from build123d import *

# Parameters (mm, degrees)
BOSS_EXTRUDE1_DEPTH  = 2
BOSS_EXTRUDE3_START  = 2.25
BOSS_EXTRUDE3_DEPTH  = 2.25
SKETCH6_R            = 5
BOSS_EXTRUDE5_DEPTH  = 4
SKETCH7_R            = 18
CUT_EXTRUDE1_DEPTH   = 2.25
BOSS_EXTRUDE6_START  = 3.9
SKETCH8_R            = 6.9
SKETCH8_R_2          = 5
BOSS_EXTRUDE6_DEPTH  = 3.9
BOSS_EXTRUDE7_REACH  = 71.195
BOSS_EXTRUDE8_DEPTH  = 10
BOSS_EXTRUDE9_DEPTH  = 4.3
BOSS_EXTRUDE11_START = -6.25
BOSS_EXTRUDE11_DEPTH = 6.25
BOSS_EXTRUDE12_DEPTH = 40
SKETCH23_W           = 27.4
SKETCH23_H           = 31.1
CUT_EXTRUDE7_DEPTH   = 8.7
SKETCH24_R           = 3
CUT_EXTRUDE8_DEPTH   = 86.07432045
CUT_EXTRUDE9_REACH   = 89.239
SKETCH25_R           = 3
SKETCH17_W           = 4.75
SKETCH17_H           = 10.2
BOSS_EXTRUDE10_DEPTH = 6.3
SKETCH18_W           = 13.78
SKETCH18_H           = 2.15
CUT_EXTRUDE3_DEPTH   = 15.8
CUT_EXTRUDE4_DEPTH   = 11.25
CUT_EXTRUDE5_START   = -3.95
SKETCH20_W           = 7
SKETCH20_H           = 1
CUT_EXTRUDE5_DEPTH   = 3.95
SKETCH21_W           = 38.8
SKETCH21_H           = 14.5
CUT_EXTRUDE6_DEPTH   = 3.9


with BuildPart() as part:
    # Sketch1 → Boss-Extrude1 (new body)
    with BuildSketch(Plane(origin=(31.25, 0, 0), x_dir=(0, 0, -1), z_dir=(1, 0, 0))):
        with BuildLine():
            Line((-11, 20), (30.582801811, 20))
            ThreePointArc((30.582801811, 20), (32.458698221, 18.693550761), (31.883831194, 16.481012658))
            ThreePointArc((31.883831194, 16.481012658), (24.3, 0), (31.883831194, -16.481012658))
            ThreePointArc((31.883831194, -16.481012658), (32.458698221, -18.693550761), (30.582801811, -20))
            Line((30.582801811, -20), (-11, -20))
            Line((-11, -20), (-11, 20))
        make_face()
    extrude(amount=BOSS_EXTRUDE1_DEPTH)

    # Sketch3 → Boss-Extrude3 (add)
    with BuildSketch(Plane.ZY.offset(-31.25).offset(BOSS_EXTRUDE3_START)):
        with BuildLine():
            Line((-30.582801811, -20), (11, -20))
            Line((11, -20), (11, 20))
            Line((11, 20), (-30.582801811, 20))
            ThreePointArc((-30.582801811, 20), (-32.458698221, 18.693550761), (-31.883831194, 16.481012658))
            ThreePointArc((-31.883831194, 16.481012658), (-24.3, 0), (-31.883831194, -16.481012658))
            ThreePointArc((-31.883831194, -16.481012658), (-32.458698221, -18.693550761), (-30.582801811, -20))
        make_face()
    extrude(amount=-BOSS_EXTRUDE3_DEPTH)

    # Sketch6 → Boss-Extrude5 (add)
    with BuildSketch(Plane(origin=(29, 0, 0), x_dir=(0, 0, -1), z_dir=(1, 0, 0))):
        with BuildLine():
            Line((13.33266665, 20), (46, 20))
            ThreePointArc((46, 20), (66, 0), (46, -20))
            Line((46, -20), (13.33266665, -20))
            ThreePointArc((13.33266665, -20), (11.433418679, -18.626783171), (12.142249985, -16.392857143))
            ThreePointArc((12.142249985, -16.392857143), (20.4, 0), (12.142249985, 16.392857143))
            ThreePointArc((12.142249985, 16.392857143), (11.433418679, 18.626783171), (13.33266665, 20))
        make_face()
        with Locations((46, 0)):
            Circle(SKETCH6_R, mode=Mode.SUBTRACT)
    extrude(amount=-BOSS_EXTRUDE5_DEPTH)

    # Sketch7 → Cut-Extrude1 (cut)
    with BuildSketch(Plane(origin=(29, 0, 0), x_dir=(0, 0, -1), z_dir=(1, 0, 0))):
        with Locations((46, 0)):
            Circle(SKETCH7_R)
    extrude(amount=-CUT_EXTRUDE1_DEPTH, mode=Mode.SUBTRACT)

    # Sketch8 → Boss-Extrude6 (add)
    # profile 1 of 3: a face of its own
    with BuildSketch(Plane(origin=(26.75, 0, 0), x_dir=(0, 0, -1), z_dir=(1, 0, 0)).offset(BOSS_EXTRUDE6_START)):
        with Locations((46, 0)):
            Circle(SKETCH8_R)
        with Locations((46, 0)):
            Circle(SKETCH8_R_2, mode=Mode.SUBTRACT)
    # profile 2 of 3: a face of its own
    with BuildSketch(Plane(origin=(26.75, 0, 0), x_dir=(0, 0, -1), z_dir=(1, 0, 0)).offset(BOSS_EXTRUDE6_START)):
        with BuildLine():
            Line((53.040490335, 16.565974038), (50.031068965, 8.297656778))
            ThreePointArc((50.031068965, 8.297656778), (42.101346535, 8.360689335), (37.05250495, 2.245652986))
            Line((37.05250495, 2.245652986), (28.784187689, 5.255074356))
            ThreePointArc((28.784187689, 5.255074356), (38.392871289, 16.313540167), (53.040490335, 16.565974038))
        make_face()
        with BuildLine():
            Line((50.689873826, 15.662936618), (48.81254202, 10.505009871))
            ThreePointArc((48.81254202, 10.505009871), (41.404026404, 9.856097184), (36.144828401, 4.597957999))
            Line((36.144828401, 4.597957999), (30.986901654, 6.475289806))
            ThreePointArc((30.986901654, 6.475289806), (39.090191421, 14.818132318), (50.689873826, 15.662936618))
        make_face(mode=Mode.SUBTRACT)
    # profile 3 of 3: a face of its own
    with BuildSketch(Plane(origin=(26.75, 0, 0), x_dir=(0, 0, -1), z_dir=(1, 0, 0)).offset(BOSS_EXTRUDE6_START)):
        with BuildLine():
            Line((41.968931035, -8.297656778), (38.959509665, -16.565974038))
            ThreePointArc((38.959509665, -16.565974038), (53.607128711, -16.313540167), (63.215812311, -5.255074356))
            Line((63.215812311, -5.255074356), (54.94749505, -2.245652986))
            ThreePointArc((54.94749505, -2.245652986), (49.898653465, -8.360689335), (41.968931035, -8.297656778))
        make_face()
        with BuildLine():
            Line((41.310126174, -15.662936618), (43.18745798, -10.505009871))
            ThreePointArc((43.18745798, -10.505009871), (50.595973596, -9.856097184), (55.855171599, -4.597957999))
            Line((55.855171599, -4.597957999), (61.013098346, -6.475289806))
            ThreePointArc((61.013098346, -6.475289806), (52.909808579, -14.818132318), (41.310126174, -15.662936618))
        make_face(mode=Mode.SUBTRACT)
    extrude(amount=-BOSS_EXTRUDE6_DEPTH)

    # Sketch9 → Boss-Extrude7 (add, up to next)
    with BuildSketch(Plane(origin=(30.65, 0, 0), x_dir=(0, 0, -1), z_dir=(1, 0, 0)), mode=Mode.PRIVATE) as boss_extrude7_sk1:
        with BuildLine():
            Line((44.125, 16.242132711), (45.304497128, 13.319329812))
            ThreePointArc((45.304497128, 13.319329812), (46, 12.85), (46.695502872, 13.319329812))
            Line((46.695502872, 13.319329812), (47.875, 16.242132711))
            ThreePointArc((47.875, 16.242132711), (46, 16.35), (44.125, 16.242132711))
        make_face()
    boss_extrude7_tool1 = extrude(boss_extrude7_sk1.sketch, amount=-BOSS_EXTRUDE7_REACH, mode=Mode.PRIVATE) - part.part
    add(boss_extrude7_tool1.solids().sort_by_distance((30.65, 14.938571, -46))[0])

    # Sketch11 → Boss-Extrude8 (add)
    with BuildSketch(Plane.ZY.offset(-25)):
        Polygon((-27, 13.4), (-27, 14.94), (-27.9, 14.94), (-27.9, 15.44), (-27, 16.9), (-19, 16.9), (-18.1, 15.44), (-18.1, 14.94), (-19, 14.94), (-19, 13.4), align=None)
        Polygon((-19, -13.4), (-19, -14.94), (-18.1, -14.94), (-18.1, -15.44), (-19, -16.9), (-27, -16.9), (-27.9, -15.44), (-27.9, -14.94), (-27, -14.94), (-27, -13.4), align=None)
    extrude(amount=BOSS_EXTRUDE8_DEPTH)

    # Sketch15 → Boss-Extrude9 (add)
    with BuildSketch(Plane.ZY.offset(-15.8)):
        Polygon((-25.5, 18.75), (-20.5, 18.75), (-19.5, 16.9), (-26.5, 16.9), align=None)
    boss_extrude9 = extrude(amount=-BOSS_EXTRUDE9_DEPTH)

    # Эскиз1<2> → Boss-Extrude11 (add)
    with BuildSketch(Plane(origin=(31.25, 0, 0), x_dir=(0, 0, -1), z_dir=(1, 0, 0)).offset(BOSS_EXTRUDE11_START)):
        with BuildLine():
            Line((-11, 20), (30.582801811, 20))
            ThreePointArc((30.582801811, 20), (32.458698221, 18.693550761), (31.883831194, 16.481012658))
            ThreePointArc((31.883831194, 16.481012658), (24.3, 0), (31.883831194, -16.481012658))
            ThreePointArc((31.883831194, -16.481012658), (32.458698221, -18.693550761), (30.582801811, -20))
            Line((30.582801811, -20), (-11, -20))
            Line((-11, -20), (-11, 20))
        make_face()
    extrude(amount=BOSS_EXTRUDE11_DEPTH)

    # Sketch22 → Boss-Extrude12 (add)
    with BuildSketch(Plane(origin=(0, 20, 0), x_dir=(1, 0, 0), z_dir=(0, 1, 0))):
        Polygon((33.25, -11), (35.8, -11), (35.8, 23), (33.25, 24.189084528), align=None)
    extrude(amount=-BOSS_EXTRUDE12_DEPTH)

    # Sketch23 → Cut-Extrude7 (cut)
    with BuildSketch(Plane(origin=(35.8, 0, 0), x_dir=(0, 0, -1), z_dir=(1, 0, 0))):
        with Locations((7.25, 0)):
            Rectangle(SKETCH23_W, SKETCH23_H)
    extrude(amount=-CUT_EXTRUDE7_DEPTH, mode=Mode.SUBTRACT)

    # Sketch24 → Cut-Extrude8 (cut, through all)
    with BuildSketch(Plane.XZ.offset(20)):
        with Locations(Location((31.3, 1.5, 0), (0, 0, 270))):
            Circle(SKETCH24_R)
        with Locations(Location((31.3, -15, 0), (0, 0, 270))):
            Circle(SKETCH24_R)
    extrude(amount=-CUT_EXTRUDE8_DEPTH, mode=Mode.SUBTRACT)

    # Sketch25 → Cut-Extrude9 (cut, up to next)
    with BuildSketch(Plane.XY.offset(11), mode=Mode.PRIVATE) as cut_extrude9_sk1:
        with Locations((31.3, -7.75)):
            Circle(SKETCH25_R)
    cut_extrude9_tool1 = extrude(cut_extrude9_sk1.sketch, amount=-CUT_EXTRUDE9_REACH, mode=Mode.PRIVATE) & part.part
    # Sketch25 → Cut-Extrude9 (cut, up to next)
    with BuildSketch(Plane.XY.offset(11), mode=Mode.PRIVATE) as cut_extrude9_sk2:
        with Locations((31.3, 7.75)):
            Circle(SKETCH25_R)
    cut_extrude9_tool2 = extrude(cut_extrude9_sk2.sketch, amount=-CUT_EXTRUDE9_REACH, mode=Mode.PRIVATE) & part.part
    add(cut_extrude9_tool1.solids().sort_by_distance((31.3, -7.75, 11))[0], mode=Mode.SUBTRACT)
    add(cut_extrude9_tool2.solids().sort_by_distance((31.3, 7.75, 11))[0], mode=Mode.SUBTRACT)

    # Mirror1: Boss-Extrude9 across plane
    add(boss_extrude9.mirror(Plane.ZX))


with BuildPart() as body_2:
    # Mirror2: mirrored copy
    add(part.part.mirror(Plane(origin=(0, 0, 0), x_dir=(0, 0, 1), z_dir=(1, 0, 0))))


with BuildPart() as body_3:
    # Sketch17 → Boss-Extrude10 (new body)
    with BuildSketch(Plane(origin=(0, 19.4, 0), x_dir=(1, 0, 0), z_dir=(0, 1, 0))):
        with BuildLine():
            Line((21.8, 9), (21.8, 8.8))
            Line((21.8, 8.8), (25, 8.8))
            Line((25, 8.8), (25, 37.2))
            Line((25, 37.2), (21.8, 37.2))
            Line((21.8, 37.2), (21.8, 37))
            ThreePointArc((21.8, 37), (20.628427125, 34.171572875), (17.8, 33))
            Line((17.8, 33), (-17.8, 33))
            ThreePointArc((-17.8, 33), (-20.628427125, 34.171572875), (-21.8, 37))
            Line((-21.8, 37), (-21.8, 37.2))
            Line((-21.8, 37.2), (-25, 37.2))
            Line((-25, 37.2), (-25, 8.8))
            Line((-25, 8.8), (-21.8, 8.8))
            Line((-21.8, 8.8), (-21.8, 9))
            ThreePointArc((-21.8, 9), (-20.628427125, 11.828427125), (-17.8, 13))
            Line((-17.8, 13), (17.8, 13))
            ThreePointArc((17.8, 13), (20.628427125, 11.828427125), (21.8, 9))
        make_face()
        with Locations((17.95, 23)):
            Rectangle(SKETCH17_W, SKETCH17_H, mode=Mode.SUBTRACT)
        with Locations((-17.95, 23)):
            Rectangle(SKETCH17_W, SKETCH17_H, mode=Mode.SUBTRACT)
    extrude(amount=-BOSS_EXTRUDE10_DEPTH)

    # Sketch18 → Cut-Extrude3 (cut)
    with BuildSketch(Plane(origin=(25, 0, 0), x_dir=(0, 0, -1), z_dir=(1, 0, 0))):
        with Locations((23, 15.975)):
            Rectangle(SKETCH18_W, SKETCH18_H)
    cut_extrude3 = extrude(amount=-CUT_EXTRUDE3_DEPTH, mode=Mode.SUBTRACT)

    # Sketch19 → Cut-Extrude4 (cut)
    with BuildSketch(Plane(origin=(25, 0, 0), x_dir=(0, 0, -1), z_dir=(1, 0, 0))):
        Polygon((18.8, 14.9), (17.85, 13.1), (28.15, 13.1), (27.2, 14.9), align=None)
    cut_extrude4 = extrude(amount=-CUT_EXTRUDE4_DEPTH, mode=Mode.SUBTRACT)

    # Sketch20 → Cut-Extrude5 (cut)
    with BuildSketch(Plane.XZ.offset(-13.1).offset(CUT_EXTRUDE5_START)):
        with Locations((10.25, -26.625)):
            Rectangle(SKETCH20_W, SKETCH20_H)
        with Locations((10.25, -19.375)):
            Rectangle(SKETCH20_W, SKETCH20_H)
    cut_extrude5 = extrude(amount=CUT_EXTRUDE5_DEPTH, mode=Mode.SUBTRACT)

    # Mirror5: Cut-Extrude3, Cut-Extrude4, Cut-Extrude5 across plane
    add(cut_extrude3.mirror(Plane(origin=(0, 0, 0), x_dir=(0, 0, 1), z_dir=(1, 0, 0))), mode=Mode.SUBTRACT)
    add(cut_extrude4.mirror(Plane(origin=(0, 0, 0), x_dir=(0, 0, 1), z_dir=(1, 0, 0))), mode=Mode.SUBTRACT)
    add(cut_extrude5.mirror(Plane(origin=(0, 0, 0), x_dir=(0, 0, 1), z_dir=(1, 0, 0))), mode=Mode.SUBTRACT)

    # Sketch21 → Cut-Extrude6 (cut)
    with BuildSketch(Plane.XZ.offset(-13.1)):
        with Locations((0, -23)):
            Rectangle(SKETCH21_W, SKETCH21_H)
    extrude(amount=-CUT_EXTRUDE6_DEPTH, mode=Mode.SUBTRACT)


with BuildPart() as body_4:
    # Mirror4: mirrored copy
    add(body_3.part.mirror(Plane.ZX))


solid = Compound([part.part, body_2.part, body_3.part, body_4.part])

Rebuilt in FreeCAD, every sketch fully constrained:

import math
import FreeCAD as App
import Part
import Sketcher
from FreeCAD import Vector
Q = App.Units.Quantity


def add_polygon(sketch, points):
    """Adds a closed chain of lines whose ends are joined by coincident constraints."""
    first, n = sketch.GeometryCount, len(points)
    for a, b in zip(points, points[1:] + points[:1]):
        sketch.addGeometry(Part.LineSegment(App.Vector(*a, 0), App.Vector(*b, 0)), False)
    for i in range(n):
        sketch.addConstraint(Sketcher.Constraint("Coincident", first + i, 2, first + (i + 1) % n, 1))

doc = App.newDocument("Part")
body = doc.addObject("PartDesign::Body", "Body")

# Sketch on YZ plane
sketch1 = doc.addObject("Sketcher::SketchObject", "Sketch")
body.addObject(sketch1)
sketch1.AttachmentSupport = (doc.YZ_Plane, [""])
sketch1.MapMode = "FlatFace"
sketch1.AttachmentOffset = App.Placement(Vector(0, 0, 31.25), App.Rotation())
sketch1.addGeometry([
    Part.LineSegment(Vector(20, -30.6, 0), Vector(20, 11, 0)),  # 0
    Part.LineSegment(Vector(20, 11, 0), Vector(-20, 11, 0)),  # 1
    Part.LineSegment(Vector(-20, 11, 0), Vector(-20, -30.6, 0)),  # 2
    Part.ArcOfCircle(Part.Circle(Vector(-18, -30.6, 0), Vector(0, 0, 1), 2), math.radians(180), math.radians(319)),  # 3
    Part.ArcOfCircle(Part.Circle(Vector(0, -46, 0), Vector(0, 0, 1), 21.7), math.radians(41), math.radians(139)),  # 4
    Part.ArcOfCircle(Part.Circle(Vector(18, -30.6, 0), Vector(0, 0, 1), 2), math.radians(-139), math.radians(0)),  # 5
], False)
sketch1.addConstraint([
    Sketcher.Constraint("Coincident", 0, 2, 1, 1),
    Sketcher.Constraint("Coincident", 1, 2, 2, 1),
    Sketcher.Constraint("Tangent", 2, 2, 3, 1),
    Sketcher.Constraint("Tangent", 3, 2, 4, 2),
    Sketcher.Constraint("Tangent", 4, 1, 5, 1),
    Sketcher.Constraint("Tangent", 5, 2, 0, 1),
    Sketcher.Constraint("Vertical", 0),
    Sketcher.Constraint("Horizontal", 1),
    Sketcher.Constraint("Vertical", 2),
    Sketcher.Constraint("Equal", 3, 5),
    Sketcher.Constraint("Symmetric", 3, 3, 5, 3, -2),
    Sketcher.Constraint("Radius", 3, Q("2 mm")),
    Sketcher.Constraint("Radius", 4, Q("21.7 mm")),
    Sketcher.Constraint("DistanceX", 1, 2, 1, 1, Q("40 mm")),
    Sketcher.Constraint("DistanceY", 4, 3, -1, 1, Q("46 mm")),
    Sketcher.Constraint("DistanceY", -1, 1, 0, 2, Q("11 mm")),
])
pad1 = doc.addObject("PartDesign::Pad", "Pad")
body.addObject(pad1)
pad1.Profile = sketch1
pad1.Length = 2

# Sketch on YZ plane
sketch2 = doc.addObject("Sketcher::SketchObject", "Sketch001")
body.addObject(sketch2)
sketch2.AttachmentSupport = (doc.YZ_Plane, [""])
sketch2.MapMode = "FlatFace"
sketch2.AttachmentOffset = App.Placement(Vector(0, 0, 29), App.Rotation())
sketch2.addGeometry([
    Part.LineSegment(Vector(-20, -30.6, 0), Vector(-20, 11, 0)),  # 0
    Part.LineSegment(Vector(-20, 11, 0), Vector(20, 11, 0)),  # 1
    Part.LineSegment(Vector(20, 11, 0), Vector(20, -30.6, 0)),  # 2
    Part.ArcOfCircle(Part.Circle(Vector(18, -30.6, 0), Vector(0, 0, 1), 2), math.radians(-139), math.radians(0)),  # 3
    Part.ArcOfCircle(Part.Circle(Vector(0, -46, 0), Vector(0, 0, 1), 21.7), math.radians(41), math.radians(139)),  # 4
    Part.ArcOfCircle(Part.Circle(Vector(-18, -30.6, 0), Vector(0, 0, 1), 2), math.radians(180), math.radians(319)),  # 5
], False)
sketch2.addConstraint([
    Sketcher.Constraint("Coincident", 0, 2, 1, 1),
    Sketcher.Constraint("Coincident", 1, 2, 2, 1),
    Sketcher.Constraint("Tangent", 2, 2, 3, 2),
    Sketcher.Constraint("Tangent", 3, 1, 4, 1),
    Sketcher.Constraint("Tangent", 4, 2, 5, 2),
    Sketcher.Constraint("Tangent", 5, 1, 0, 1),
    Sketcher.Constraint("Vertical", 0),
    Sketcher.Constraint("Horizontal", 1),
    Sketcher.Constraint("Vertical", 2),
    Sketcher.Constraint("Equal", 3, 5),
    Sketcher.Constraint("Symmetric", 3, 3, 5, 3, -2),
    Sketcher.Constraint("Radius", 3, Q("2 mm")),
    Sketcher.Constraint("Radius", 4, Q("21.7 mm")),
    Sketcher.Constraint("DistanceX", 1, 1, 1, 2, Q("40 mm")),
    Sketcher.Constraint("DistanceY", 4, 3, -1, 1, Q("46 mm")),
    Sketcher.Constraint("DistanceY", -1, 1, 0, 2, Q("11 mm")),
])
pad2 = doc.addObject("PartDesign::Pad", "Pad001")
body.addObject(pad2)
pad2.Profile = sketch2
pad2.Length = 2.25

# Sketch on YZ plane
sketch3 = doc.addObject("Sketcher::SketchObject", "Sketch002")
body.addObject(sketch3)
sketch3.AttachmentSupport = (doc.YZ_Plane, [""])
sketch3.MapMode = "FlatFace"
sketch3.AttachmentOffset = App.Placement(Vector(0, 0, 29), App.Rotation())
sketch3.addGeometry([
    Part.LineSegment(Vector(20, -46, 0), Vector(20, -13.3, 0)),  # 0
    Part.ArcOfCircle(Part.Circle(Vector(18, -13.3, 0), Vector(0, 0, 1), 2), math.radians(0), math.radians(143)),  # 1
    Part.ArcOfCircle(Part.Circle(Vector(0, 0, 0), Vector(0, 0, 1), 20.4), math.radians(-143), math.radians(-37)),  # 2
    Part.ArcOfCircle(Part.Circle(Vector(-18, -13.3, 0), Vector(0, 0, 1), 2), math.radians(37), math.radians(180)),  # 3
    Part.LineSegment(Vector(-20, -13.3, 0), Vector(-20, -46, 0)),  # 4
    Part.ArcOfCircle(Part.Circle(Vector(0, -46, 0), Vector(0, 0, 1), 20), math.radians(180), math.radians(360)),  # 5
    Part.Circle(Vector(0, -46, 0), Vector(0, 0, 1), 5),  # 6
], False)
sketch3.addConstraint([
    Sketcher.Constraint("Tangent", 0, 2, 1, 1),
    Sketcher.Constraint("Tangent", 1, 2, 2, 2),
    Sketcher.Constraint("Tangent", 2, 1, 3, 1),
    Sketcher.Constraint("Tangent", 3, 2, 4, 1),
    Sketcher.Constraint("Tangent", 4, 2, 5, 1),
    Sketcher.Constraint("Tangent", 5, 2, 0, 1),
    Sketcher.Constraint("Vertical", 0),
    Sketcher.Constraint("Vertical", 4),
    Sketcher.Constraint("Coincident", 2, 3, -1, 1),
    Sketcher.Constraint("Coincident", 6, 3, 5, 3),
    Sketcher.Constraint("Equal", 1, 3),
    Sketcher.Constraint("PointOnObject", 5, 3, -2),
    Sketcher.Constraint("Diameter", 6, Q("10 mm")),
    Sketcher.Constraint("Radius", 1, Q("2 mm")),
    Sketcher.Constraint("Radius", 5, Q("20 mm")),
    Sketcher.Constraint("Radius", 2, Q("20.4 mm")),
    Sketcher.Constraint("DistanceY", 5, 3, -1, 1, Q("46 mm")),
])
pad3 = doc.addObject("PartDesign::Pad", "Pad002")
body.addObject(pad3)
pad3.Profile = sketch3
pad3.Length = 4
pad3.Reversed = True

# Sketch on YZ plane
sketch4 = doc.addObject("Sketcher::SketchObject", "Sketch003")
body.addObject(sketch4)
sketch4.AttachmentSupport = (doc.YZ_Plane, [""])
sketch4.MapMode = "FlatFace"
sketch4.AttachmentOffset = App.Placement(Vector(0, 0, 29), App.Rotation())
sketch4.addGeometry(Part.Circle(Vector(0, -46, 0), Vector(0, 0, 1), 18), False)
sketch4.addConstraint([
    Sketcher.Constraint("PointOnObject", 0, 3, -2),
    Sketcher.Constraint("Diameter", 0, Q("36 mm")),
    Sketcher.Constraint("DistanceY", 0, 3, -1, 1, Q("46 mm")),
])
pocket1 = doc.addObject("PartDesign::Pocket", "Pocket")
body.addObject(pocket1)
pocket1.Profile = sketch4
pocket1.Length = 2.25

# Sketch on YZ plane
sketch5 = doc.addObject("Sketcher::SketchObject", "Sketch004")
body.addObject(sketch5)
sketch5.AttachmentSupport = (doc.YZ_Plane, [""])
sketch5.MapMode = "FlatFace"
sketch5.AttachmentOffset = App.Placement(Vector(0, 0, 30.65), App.Rotation())
sketch5.addGeometry([
    Part.Circle(Vector(0, -46, 0), Vector(0, 0, 1), 6.9),  # 0
    Part.Circle(Vector(0, -46, 0), Vector(0, 0, 1), 5),  # 1
    Part.LineSegment(Vector(8.297657, -50.031069, 0), Vector(16.565974, -53.04049, 0)),  # 2
    Part.ArcOfCircle(Part.Circle(Vector(0, -46, 0), Vector(0, 0, 1), 18), math.radians(-23.02535), math.radians(73.02535)),  # 3
    Part.LineSegment(Vector(5.255074, -28.784188, 0), Vector(2.245653, -37.052505, 0)),  # 4
    Part.ArcOfCircle(Part.Circle(Vector(0, -46, 0), Vector(0, 0, 1), 9.225), math.radians(-25.910857), math.radians(75.910857)),  # 5
    Part.LineSegment(Vector(15.662937, -50.689874, 0), Vector(10.50501, -48.812542, 0)),  # 6
    Part.ArcOfCircle(Part.Circle(Vector(0, -46, 0), Vector(0, 0, 1), 10.875), math.radians(-14.988464), math.radians(64.988464)),  # 7
    Part.LineSegment(Vector(4.597958, -36.144828, 0), Vector(6.47529, -30.986902, 0)),  # 8
    Part.ArcOfCircle(Part.Circle(Vector(0, -46, 0), Vector(0, 0, 1), 16.35), math.radians(-16.669011), math.radians(66.669011)),  # 9
    Part.LineSegment(Vector(-8.297657, -41.968931, 0), Vector(-16.565974, -38.95951, 0)),  # 10
    Part.ArcOfCircle(Part.Circle(Vector(0, -46, 0), Vector(0, 0, 1), 18), math.radians(156.97465), math.radians(253.02535)),  # 11
    Part.LineSegment(Vector(-5.255074, -63.215812, 0), Vector(-2.245653, -54.947495, 0)),  # 12
    Part.ArcOfCircle(Part.Circle(Vector(0, -46, 0), Vector(0, 0, 1), 9.225), math.radians(154.089143), math.radians(255.910857)),  # 13
    Part.ArcOfCircle(Part.Circle(Vector(0, -46, 0), Vector(0, 0, 1), 16.35), math.radians(163.330989), math.radians(246.669011)),  # 14
    Part.LineSegment(Vector(-15.662937, -41.310126, 0), Vector(-10.50501, -43.187458, 0)),  # 15
    Part.ArcOfCircle(Part.Circle(Vector(0, -46, 0), Vector(0, 0, 1), 10.875), math.radians(165.011536), math.radians(244.988464)),  # 16
    Part.LineSegment(Vector(-4.597958, -55.855172, 0), Vector(-6.47529, -61.013098, 0)),  # 17
], False)
sketch5.addConstraint([
    Sketcher.Constraint("Coincident", 2, 2, 3, 1),
    Sketcher.Constraint("Coincident", 3, 2, 4, 1),
    Sketcher.Constraint("Coincident", 4, 2, 5, 2),
    Sketcher.Constraint("Coincident", 5, 1, 2, 1),
    Sketcher.Constraint("Coincident", 6, 2, 7, 1),
    Sketcher.Constraint("Coincident", 7, 2, 8, 1),
    Sketcher.Constraint("Coincident", 8, 2, 9, 2),
    Sketcher.Constraint("Coincident", 9, 1, 6, 1),
    Sketcher.Constraint("Coincident", 10, 2, 11, 1),
    Sketcher.Constraint("Coincident", 11, 2, 12, 1),
    Sketcher.Constraint("Coincident", 12, 2, 13, 2),
    Sketcher.Constraint("Coincident", 13, 1, 10, 1),
    Sketcher.Constraint("Coincident", 14, 1, 15, 1),
    Sketcher.Constraint("Coincident", 15, 2, 16, 1),
    Sketcher.Constraint("Coincident", 16, 2, 17, 1),
    Sketcher.Constraint("Coincident", 17, 2, 14, 2),
    Sketcher.Constraint("Coincident", 1, 3, 0, 3),
    Sketcher.Constraint("Coincident", 3, 3, 0, 3),
    Sketcher.Constraint("Coincident", 5, 3, 0, 3),
    Sketcher.Constraint("Coincident", 7, 3, 0, 3),
    Sketcher.Constraint("Coincident", 9, 3, 0, 3),
    Sketcher.Constraint("Coincident", 11, 3, 0, 3),
    Sketcher.Constraint("Coincident", 13, 3, 0, 3),
    Sketcher.Constraint("Coincident", 14, 3, 0, 3),
    Sketcher.Constraint("Coincident", 16, 3, 0, 3),
    Sketcher.Constraint("Equal", 3, 11),
    Sketcher.Constraint("Equal", 5, 13),
    Sketcher.Constraint("Equal", 9, 14),
    Sketcher.Constraint("Equal", 7, 16),
    Sketcher.Constraint("PointOnObject", 0, 3, -2),
    Sketcher.Constraint("Perpendicular", 2, 4),
    Sketcher.Constraint("Perpendicular", 4, 6),
    Sketcher.Constraint("Perpendicular", 6, 8),
    Sketcher.Constraint("Perpendicular", 8, 10),
    Sketcher.Constraint("Perpendicular", 10, 12),
    Sketcher.Constraint("Perpendicular", 12, 15),
    Sketcher.Constraint("Perpendicular", 15, 17),
    Sketcher.Constraint("Equal", 2, 4),
    Sketcher.Constraint("Equal", 6, 8),
    Sketcher.Constraint("Equal", 4, 10),
    Sketcher.Constraint("Equal", 10, 12),
    Sketcher.Constraint("Equal", 8, 15),
    Sketcher.Constraint("Equal", 15, 17),
    Sketcher.Constraint("Diameter", 1, Q("10 mm")),
    Sketcher.Constraint("Radius", 3, Q("18 mm")),
    Sketcher.Constraint("Diameter", 0, Q("13.8 mm")),
    Sketcher.Constraint("Angle", 2, Q("-20 deg")),
    Sketcher.Constraint("Radius", 9, Q("16.35 mm")),
    Sketcher.Constraint("DistanceY", 0, 3, -1, 1, Q("46 mm")),
    Sketcher.Constraint("Radius", 5, Q("9.225 mm")),
    Sketcher.Constraint("Radius", 7, Q("10.875 mm")),
    Sketcher.Constraint("DistanceY", 8, 2, -1, 1, Q("30.986902 mm")),
    Sketcher.Constraint("Distance", 2, Q("8.798959 mm")),
])
pad4 = doc.addObject("PartDesign::Pad", "Pad003")
body.addObject(pad4)
pad4.Profile = sketch5
pad4.Length = 3.9
pad4.Reversed = True

# Sketch on YZ plane
sketch6 = doc.addObject("Sketcher::SketchObject", "Sketch005")
body.addObject(sketch6)
sketch6.AttachmentSupport = (doc.YZ_Plane, [""])
sketch6.MapMode = "FlatFace"
sketch6.AttachmentOffset = App.Placement(Vector(0, 0, 30.65), App.Rotation())
sketch6.addGeometry([
    Part.LineSegment(Vector(16.2, -44.1, 0), Vector(13.3, -45.3, 0)),
    Part.ArcOfCircle(Part.Circle(Vector(13.6, -46, 0), Vector(0, 0, 1), 0.7), math.radians(112), math.radians(248)),
    Part.LineSegment(Vector(13.3, -46.7, 0), Vector(16.2, -47.9, 0)),
    Part.ArcOfCircle(Part.Circle(Vector(0, -46, 0), Vector(0, 0, 1), 16.4), math.radians(-6.59), math.radians(6.59)),
], False)
sketch6.addConstraint([
    Sketcher.Constraint("Tangent", 0, 2, 1, 1),
    Sketcher.Constraint("Tangent", 1, 2, 2, 1),
    Sketcher.Constraint("Coincident", 2, 2, 3, 1),
    Sketcher.Constraint("Coincident", 3, 2, 0, 1),
    Sketcher.Constraint("PointOnObject", 3, 3, -2),
    Sketcher.Constraint("Horizontal", 1, 3, 3, 3),
    Sketcher.Constraint("Vertical", 0, 2, 1, 2),
    Sketcher.Constraint("Radius", 1, Q("0.75 mm")),
    Sketcher.Constraint("Radius", 3, Q("16.35 mm")),
    Sketcher.Constraint("DistanceY", 1, 3, -1, 1, Q("46 mm")),
    Sketcher.Constraint("DistanceX", -1, 1, 1, 3, Q("13.6 mm")),
    Sketcher.Constraint("DistanceY", 2, 2, 3, 2, Q("3.75 mm")),
])
pad5 = doc.addObject("PartDesign::Pad", "Pad004")
body.addObject(pad5)
pad5.Profile = sketch6
pad5.Type = "UpToFirst"
pad5.Reversed = True

# Sketch on YZ plane
sketch7 = doc.addObject("Sketcher::SketchObject", "Sketch006")
body.addObject(sketch7)
sketch7.AttachmentSupport = (doc.YZ_Plane, [""])
sketch7.MapMode = "FlatFace"
sketch7.AttachmentOffset = App.Placement(Vector(0, 0, 25), App.Rotation())
add_polygon(sketch7, [(14.9, -27), (13.4, -27), (13.4, -19), (14.9, -19), (14.9, -18.1), (15.4, -18.1), (16.9, -19), (16.9, -27), (15.4, -27.9), (14.9, -27.9)])  # lines 0-9
add_polygon(sketch7, [(-14.9, -19), (-13.4, -19), (-13.4, -27), (-14.9, -27), (-14.9, -27.9), (-15.4, -27.9), (-16.9, -27), (-16.9, -19), (-15.4, -18.1), (-14.9, -18.1)])  # lines 10-19
sketch7.addConstraint([
    Sketcher.Constraint("Horizontal", 0),
    Sketcher.Constraint("Vertical", 1),
    Sketcher.Constraint("Horizontal", 2),
    Sketcher.Constraint("Vertical", 3),
    Sketcher.Constraint("Horizontal", 4),
    Sketcher.Constraint("Vertical", 6),
    Sketcher.Constraint("Horizontal", 8),
    Sketcher.Constraint("Vertical", 9),
    Sketcher.Constraint("Horizontal", 10),
    Sketcher.Constraint("Vertical", 11),
    Sketcher.Constraint("Horizontal", 12),
    Sketcher.Constraint("Vertical", 13),
    Sketcher.Constraint("Horizontal", 14),
    Sketcher.Constraint("Vertical", 16),
    Sketcher.Constraint("Horizontal", 18),
    Sketcher.Constraint("Vertical", 19),
    Sketcher.Constraint("Symmetric", 1, 2, 10, 2, -2),
    Sketcher.Constraint("Symmetric", 9, 2, 12, 2, -2),
    Sketcher.Constraint("Symmetric", 7, 2, 14, 2, -2),
    Sketcher.Constraint("Symmetric", 6, 2, 15, 2, -2),
    Sketcher.Constraint("Symmetric", 4, 2, 17, 2, -2),
    Sketcher.Constraint("Parallel", 5, 15),
    Sketcher.Constraint("Parallel", 7, 17),
    Sketcher.Constraint("Horizontal", 2, 2, 5, 2),
    Sketcher.Constraint("Horizontal", 0, 2, 6, 2),
    Sketcher.Constraint("Vertical", 4, 2, 7, 2),
    Sketcher.Constraint("Vertical", 3, 2, 8, 2),
    Sketcher.Constraint("Vertical", 13, 2, 18, 2),
    Sketcher.Constraint("DistanceY", 1, 1, 1, 2, Q("8 mm")),
    Sketcher.Constraint("DistanceX", 4, 1, 4, 2, Q("0.5 mm")),
    Sketcher.Constraint("DistanceY", 3, 1, 3, 2, Q("0.9 mm")),
    Sketcher.Constraint("DistanceY", 0, 2, -1, 1, Q("27 mm")),
    Sketcher.Constraint("DistanceX", 0, 2, 0, 1, Q("1.54 mm")),
    Sketcher.Constraint("DistanceX", -1, 1, 0, 2, Q("13.4 mm")),
    Sketcher.Constraint("DistanceX", -1, 1, 5, 2, Q("16.9 mm")),
])
pad6 = doc.addObject("PartDesign::Pad", "Pad005")
body.addObject(pad6)
pad6.Profile = sketch7
pad6.Length = 10
pad6.Reversed = True

# Sketch on YZ plane
sketch8 = doc.addObject("Sketcher::SketchObject", "Sketch007")
body.addObject(sketch8)
sketch8.AttachmentSupport = (doc.YZ_Plane, [""])
sketch8.MapMode = "FlatFace"
sketch8.AttachmentOffset = App.Placement(Vector(0, 0, 15.8), App.Rotation())
add_polygon(sketch8, [(18.8, -20.5), (18.8, -25.5), (16.9, -26.5), (16.9, -19.5)])  # lines 0-3
sketch8.addConstraint([
    Sketcher.Constraint("Vertical", 0),
    Sketcher.Constraint("Vertical", 2),
    Sketcher.Constraint("Equal", 1, 3),
    Sketcher.Constraint("DistanceY", 0, 2, 0, 1, Q("5 mm")),
    Sketcher.Constraint("DistanceY", 2, 1, 2, 2, Q("7 mm")),
    Sketcher.Constraint("DistanceY", 0, 2, -1, 1, Q("25.5 mm")),
    Sketcher.Constraint("DistanceX", -1, 1, 1, 2, Q("16.9 mm")),
    Sketcher.Constraint("DistanceX", -1, 1, 0, 2, Q("18.75 mm")),
])
pad7 = doc.addObject("PartDesign::Pad", "Pad006")
body.addObject(pad7)
pad7.Profile = sketch8
pad7.Length = 4.3

# Sketch on YZ plane
sketch9 = doc.addObject("Sketcher::SketchObject", "Sketch008")
body.addObject(sketch9)
sketch9.AttachmentSupport = (doc.YZ_Plane, [""])
sketch9.MapMode = "FlatFace"
sketch9.AttachmentOffset = App.Placement(Vector(0, 0, 25), App.Rotation())
sketch9.addGeometry([
    Part.LineSegment(Vector(20, -30.6, 0), Vector(20, 11, 0)),  # 0
    Part.LineSegment(Vector(20, 11, 0), Vector(-20, 11, 0)),  # 1
    Part.LineSegment(Vector(-20, 11, 0), Vector(-20, -30.6, 0)),  # 2
    Part.ArcOfCircle(Part.Circle(Vector(-18, -30.6, 0), Vector(0, 0, 1), 2), math.radians(180), math.radians(319)),  # 3
    Part.ArcOfCircle(Part.Circle(Vector(0, -46, 0), Vector(0, 0, 1), 21.7), math.radians(41), math.radians(139)),  # 4
    Part.ArcOfCircle(Part.Circle(Vector(18, -30.6, 0), Vector(0, 0, 1), 2), math.radians(-139), math.radians(0)),  # 5
], False)
sketch9.addConstraint([
    Sketcher.Constraint("Coincident", 0, 2, 1, 1),
    Sketcher.Constraint("Coincident", 1, 2, 2, 1),
    Sketcher.Constraint("Tangent", 2, 2, 3, 1),
    Sketcher.Constraint("Tangent", 3, 2, 4, 2),
    Sketcher.Constraint("Tangent", 4, 1, 5, 1),
    Sketcher.Constraint("Tangent", 5, 2, 0, 1),
    Sketcher.Constraint("Vertical", 0),
    Sketcher.Constraint("Horizontal", 1),
    Sketcher.Constraint("Vertical", 2),
    Sketcher.Constraint("Equal", 3, 5),
    Sketcher.Constraint("Symmetric", 3, 3, 5, 3, -2),
    Sketcher.Constraint("Radius", 3, Q("2 mm")),
    Sketcher.Constraint("Radius", 4, Q("21.7 mm")),
    Sketcher.Constraint("DistanceX", 1, 2, 1, 1, Q("40 mm")),
    Sketcher.Constraint("DistanceY", 4, 3, -1, 1, Q("46 mm")),
    Sketcher.Constraint("DistanceY", -1, 1, 0, 2, Q("11 mm")),
])
pad8 = doc.addObject("PartDesign::Pad", "Pad007")
body.addObject(pad8)
pad8.Profile = sketch9
pad8.Length = 6.25

# Sketch on XZ plane
sketch10 = doc.addObject("Sketcher::SketchObject", "Sketch009")
body.addObject(sketch10)
sketch10.AttachmentSupport = (doc.XZ_Plane, [""])
sketch10.MapMode = "FlatFace"
sketch10.AttachmentOffset = App.Placement(Vector(0, 0, -20), App.Rotation())
add_polygon(sketch10, [(33.2, 11), (35.8, 11), (35.8, -23), (33.2, -24.2)])  # lines 0-3
sketch10.addConstraint([
    Sketcher.Constraint("Horizontal", 0),
    Sketcher.Constraint("Vertical", 1),
    Sketcher.Constraint("Vertical", 3),
    Sketcher.Constraint("DistanceY", 1, 2, 1, 1, Q("34 mm")),
    Sketcher.Constraint("Angle", 2, Q("-155 deg")),
    Sketcher.Constraint("DistanceY", -1, 1, 0, 2, Q("11 mm")),
    Sketcher.Constraint("DistanceX", 0, 1, 0, 2, Q("2.55 mm")),
    Sketcher.Constraint("DistanceX", -1, 1, 0, 2, Q("35.8 mm")),
])
pad9 = doc.addObject("PartDesign::Pad", "Pad008")
body.addObject(pad9)
pad9.Profile = sketch10
pad9.Length = 40

# Sketch on YZ plane
sketch11 = doc.addObject("Sketcher::SketchObject", "Sketch010")
body.addObject(sketch11)
sketch11.AttachmentSupport = (doc.YZ_Plane, [""])
sketch11.MapMode = "FlatFace"
sketch11.AttachmentOffset = App.Placement(Vector(0, 0, 35.8), App.Rotation())
add_polygon(sketch11, [(16, 6), (-16, 6), (-16, -21), (16, -21)])  # lines 0-3
sketch11.addConstraint([
    Sketcher.Constraint("Horizontal", 0),
    Sketcher.Constraint("Vertical", 1),
    Sketcher.Constraint("Horizontal", 2),
    Sketcher.Constraint("Vertical", 3),
    Sketcher.Constraint("DistanceX", 0, 2, 0, 1, Q("31.1 mm")),
    Sketcher.Constraint("DistanceY", 1, 2, 1, 1, Q("27.4 mm")),
    Sketcher.Constraint("DistanceX", 0, 2, -1, 1, Q("15.55 mm")),
    Sketcher.Constraint("DistanceY", -1, 1, 0, 2, Q("6.45 mm")),
])
pocket2 = doc.addObject("PartDesign::Pocket", "Pocket001")
body.addObject(pocket2)
pocket2.Profile = sketch11
pocket2.Length = 8.7

# Sketch on XZ plane
sketch12 = doc.addObject("Sketcher::SketchObject", "Sketch011")
body.addObject(sketch12)
sketch12.AttachmentSupport = (doc.XZ_Plane, [""])
sketch12.MapMode = "FlatFace"
sketch12.AttachmentOffset = App.Placement(Vector(0, 0, 20), App.Rotation())
sketch12.addGeometry([
    Part.Circle(Vector(31.3, 1.5, 0), Vector(0, 0, 1), 3),
    Part.Circle(Vector(31.3, -15, 0), Vector(0, 0, 1), 3),
], False)
sketch12.addConstraint([
    Sketcher.Constraint("Equal", 0, 1),
    Sketcher.Constraint("Vertical", 0, 3, 1, 3),
    Sketcher.Constraint("Diameter", 0, Q("6 mm")),
    Sketcher.Constraint("DistanceY", 1, 3, -1, 1, Q("15 mm")),
    Sketcher.Constraint("DistanceX", -1, 1, 0, 3, Q("31.3 mm")),
    Sketcher.Constraint("DistanceY", -1, 1, 0, 3, Q("1.5 mm")),
])
pocket3 = doc.addObject("PartDesign::Pocket", "Pocket002")
body.addObject(pocket3)
pocket3.Profile = sketch12
pocket3.Type = "ThroughAll"

# Sketch on XY plane
sketch13 = doc.addObject("Sketcher::SketchObject", "Sketch012")
body.addObject(sketch13)
sketch13.AttachmentSupport = (doc.XY_Plane, [""])
sketch13.MapMode = "FlatFace"
sketch13.AttachmentOffset = App.Placement(Vector(0, 0, 11), App.Rotation())
sketch13.addGeometry(Part.Circle(Vector(31.3, -7.8, 0), Vector(0, 0, 1), 3), False)
sketch13.addConstraint([
    Sketcher.Constraint("Diameter", 0, Q("6 mm")),
    Sketcher.Constraint("DistanceX", -1, 1, 0, 3, Q("31.3 mm")),
    Sketcher.Constraint("DistanceY", 0, 3, -1, 1, Q("7.75 mm")),
])
pocket4 = doc.addObject("PartDesign::Pocket", "Pocket003")
body.addObject(pocket4)
pocket4.Profile = sketch13
pocket4.Type = "UpToFirst"

# Sketch on XY plane
sketch14 = doc.addObject("Sketcher::SketchObject", "Sketch013")
body.addObject(sketch14)
sketch14.AttachmentSupport = (doc.XY_Plane, [""])
sketch14.MapMode = "FlatFace"
sketch14.AttachmentOffset = App.Placement(Vector(0, 0, 11), App.Rotation())
sketch14.addGeometry(Part.Circle(Vector(31.3, 7.8, 0), Vector(0, 0, 1), 3), False)
sketch14.addConstraint([
    Sketcher.Constraint("Diameter", 0, Q("6 mm")),
    Sketcher.Constraint("DistanceX", -1, 1, 0, 3, Q("31.3 mm")),
    Sketcher.Constraint("DistanceY", -1, 1, 0, 3, Q("7.75 mm")),
])
pocket5 = doc.addObject("PartDesign::Pocket", "Pocket004")
body.addObject(pocket5)
pocket5.Profile = sketch14
pocket5.Type = "UpToFirst"
doc.recompute()

mirrored = doc.addObject("PartDesign::Mirrored", "Mirrored")
body.addObject(mirrored)
mirrored.Originals = [pad7]
mirrored.MirrorPlane = (doc.XZ_Plane, [""])
body.Tip = mirrored
body2 = doc.addObject("PartDesign::Body", "Body001")
doc.recompute()

mirroring = doc.addObject("Part::Mirroring", "Mirroring")
mirroring.Source = body
mirroring.Base = Vector(0, 0, 0)
mirroring.Normal = Vector(1, 0, 0)
body2.BaseFeature = mirroring
doc.recompute()
body3 = doc.addObject("PartDesign::Body", "Body002")

# Sketch on XZ plane
sketch15 = doc.addObject("Sketcher::SketchObject", "Sketch014")
body3.addObject(sketch15)
sketch15.AttachmentSupport = (doc.getObject("XZ_Plane002"), [""])
sketch15.MapMode = "FlatFace"
sketch15.AttachmentOffset = App.Placement(Vector(0, 0, -19.4), App.Rotation())
sketch15.addGeometry(Part.LineSegment(Vector(21.8, -9, 0), Vector(21.8, -8.8, 0)), False)  # 0
sketch15.addGeometry(Part.LineSegment(Vector(21.8, -8.8, 0), Vector(25, -8.8, 0)), False)  # 1
sketch15.addGeometry(Part.LineSegment(Vector(25, -8.8, 0), Vector(25, -37.2, 0)), False)  # 2
sketch15.addGeometry(Part.LineSegment(Vector(25, -37.2, 0), Vector(21.8, -37.2, 0)), False)  # 3
sketch15.addGeometry(Part.LineSegment(Vector(21.8, -37.2, 0), Vector(21.8, -37, 0)), False)  # 4
sketch15.addGeometry(Part.ArcOfCircle(Part.Circle(Vector(17.8, -37, 0), Vector(0, 0, 1), 4), math.radians(0), math.radians(90)), False)  # 5
sketch15.addGeometry(Part.LineSegment(Vector(17.8, -33, 0), Vector(-17.8, -33, 0)), False)  # 6
sketch15.addGeometry(Part.ArcOfCircle(Part.Circle(Vector(-17.8, -37, 0), Vector(0, 0, 1), 4), math.radians(90), math.radians(180)), False)  # 7
sketch15.addGeometry(Part.LineSegment(Vector(-21.8, -37, 0), Vector(-21.8, -37.2, 0)), False)  # 8
sketch15.addGeometry(Part.LineSegment(Vector(-21.8, -37.2, 0), Vector(-25, -37.2, 0)), False)  # 9
sketch15.addGeometry(Part.LineSegment(Vector(-25, -37.2, 0), Vector(-25, -8.8, 0)), False)  # 10
sketch15.addGeometry(Part.LineSegment(Vector(-25, -8.8, 0), Vector(-21.8, -8.8, 0)), False)  # 11
sketch15.addGeometry(Part.LineSegment(Vector(-21.8, -8.8, 0), Vector(-21.8, -9, 0)), False)  # 12
sketch15.addGeometry(Part.ArcOfCircle(Part.Circle(Vector(-17.8, -9, 0), Vector(0, 0, 1), 4), math.radians(180), math.radians(270)), False)  # 13
sketch15.addGeometry(Part.LineSegment(Vector(-17.8, -13, 0), Vector(17.8, -13, 0)), False)  # 14
sketch15.addGeometry(Part.ArcOfCircle(Part.Circle(Vector(17.8, -9, 0), Vector(0, 0, 1), 4), math.radians(-90), math.radians(0)), False)  # 15
add_polygon(sketch15, [(-15.57, -17.9), (-20.32, -17.9), (-20.32, -28.1), (-15.57, -28.1)])  # lines 16-19
add_polygon(sketch15, [(20.32, -17.9), (15.57, -17.9), (15.57, -28.1), (20.32, -28.1)])  # lines 20-23
sketch15.addConstraint([
    Sketcher.Constraint("Coincident", 0, 2, 1, 1),
    Sketcher.Constraint("Coincident", 1, 2, 2, 1),
    Sketcher.Constraint("Coincident", 2, 2, 3, 1),
    Sketcher.Constraint("Coincident", 3, 2, 4, 1),
    Sketcher.Constraint("Tangent", 4, 2, 5, 1),
    Sketcher.Constraint("Tangent", 5, 2, 6, 1),
    Sketcher.Constraint("Tangent", 6, 2, 7, 1),
    Sketcher.Constraint("Tangent", 7, 2, 8, 1),
    Sketcher.Constraint("Coincident", 8, 2, 9, 1),
    Sketcher.Constraint("Coincident", 9, 2, 10, 1),
    Sketcher.Constraint("Coincident", 10, 2, 11, 1),
    Sketcher.Constraint("Coincident", 11, 2, 12, 1),
    Sketcher.Constraint("Tangent", 12, 2, 13, 1),
    Sketcher.Constraint("Tangent", 13, 2, 14, 1),
    Sketcher.Constraint("Tangent", 14, 2, 15, 1),
    Sketcher.Constraint("Tangent", 15, 2, 0, 1),
    Sketcher.Constraint("Vertical", 0),
    Sketcher.Constraint("Horizontal", 1),
    Sketcher.Constraint("Vertical", 2),
    Sketcher.Constraint("Horizontal", 3),
    Sketcher.Constraint("Vertical", 4),
    Sketcher.Constraint("Horizontal", 6),
    Sketcher.Constraint("Vertical", 8),
    Sketcher.Constraint("Horizontal", 9),
    Sketcher.Constraint("Vertical", 10),
    Sketcher.Constraint("Horizontal", 11),
    Sketcher.Constraint("Vertical", 12),
    Sketcher.Constraint("Horizontal", 14),
    Sketcher.Constraint("Horizontal", 16),
    Sketcher.Constraint("Vertical", 17),
    Sketcher.Constraint("Horizontal", 18),
    Sketcher.Constraint("Vertical", 19),
    Sketcher.Constraint("Horizontal", 20),
    Sketcher.Constraint("Vertical", 21),
    Sketcher.Constraint("Horizontal", 22),
    Sketcher.Constraint("Vertical", 23),
    Sketcher.Constraint("Equal", 5, 7),
    Sketcher.Constraint("Equal", 7, 13),
    Sketcher.Constraint("Equal", 13, 15),
    Sketcher.Constraint("Symmetric", 3, 2, 8, 2, -2),
    Sketcher.Constraint("Symmetric", 1, 2, 10, 2, -2),
    Sketcher.Constraint("Symmetric", 19, 2, 20, 2, -2),
    Sketcher.Constraint("Symmetric", 17, 2, 22, 2, -2),
    Sketcher.Constraint("Vertical", 7, 3, 13, 3),
    Sketcher.Constraint("Vertical", 5, 3, 15, 3),
    Sketcher.Constraint("Equal", 0, 4),
    Sketcher.Constraint("Radius", 5, Q("4 mm")),
    Sketcher.Constraint("DistanceX", 1, 1, 1, 2, Q("3.2 mm")),
    Sketcher.Constraint("DistanceX", 6, 2, 6, 1, Q("35.6 mm")),
    Sketcher.Constraint("DistanceY", 0, 1, 0, 2, Q("0.2 mm")),
    Sketcher.Constraint("DistanceY", 2, 2, 2, 1, Q("28.4 mm")),
    Sketcher.Constraint("DistanceY", 17, 2, 17, 1, Q("10.2 mm")),
    Sketcher.Constraint("DistanceY", 5, 3, -1, 1, Q("37 mm")),
    Sketcher.Constraint("DistanceX", 16, 2, 16, 1, Q("4.75 mm")),
    Sketcher.Constraint("DistanceY", 16, 2, -1, 1, Q("17.9 mm")),
    Sketcher.Constraint("DistanceX", 16, 2, -1, 1, Q("20.325 mm")),
])
pad10 = doc.addObject("PartDesign::Pad", "Pad009")
body3.addObject(pad10)
pad10.Profile = sketch15
pad10.Length = 6.3

# Sketch on YZ plane
sketch16 = doc.addObject("Sketcher::SketchObject", "Sketch015")
body3.addObject(sketch16)
sketch16.AttachmentSupport = (doc.getObject("YZ_Plane002"), [""])
sketch16.MapMode = "FlatFace"
sketch16.AttachmentOffset = App.Placement(Vector(0, 0, 25), App.Rotation())
add_polygon(sketch16, [(17.1, -16.1), (14.9, -16.1), (14.9, -29.9), (17.1, -29.9)])  # lines 0-3
sketch16.addConstraint([
    Sketcher.Constraint("Horizontal", 0),
    Sketcher.Constraint("Vertical", 1),
    Sketcher.Constraint("Horizontal", 2),
    Sketcher.Constraint("Vertical", 3),
    Sketcher.Constraint("DistanceX", 0, 2, 0, 1, Q("2.15 mm")),
    Sketcher.Constraint("DistanceY", 1, 2, 1, 1, Q("13.78 mm")),
    Sketcher.Constraint("DistanceX", -1, 1, 0, 2, Q("14.9 mm")),
    Sketcher.Constraint("DistanceY", 0, 2, -1, 1, Q("16.11 mm")),
])
pocket6 = doc.addObject("PartDesign::Pocket", "Pocket005")
body3.addObject(pocket6)
pocket6.Profile = sketch16
pocket6.Length = 15.8

# Sketch on YZ plane
sketch17 = doc.addObject("Sketcher::SketchObject", "Sketch016")
body3.addObject(sketch17)
sketch17.AttachmentSupport = (doc.getObject("YZ_Plane002"), [""])
sketch17.MapMode = "FlatFace"
sketch17.AttachmentOffset = App.Placement(Vector(0, 0, 25), App.Rotation())
add_polygon(sketch17, [(14.9, -18.8), (13.1, -17.9), (13.1, -28.1), (14.9, -27.2)])  # lines 0-3
sketch17.addConstraint([
    Sketcher.Constraint("Vertical", 1),
    Sketcher.Constraint("Vertical", 3),
    Sketcher.Constraint("Equal", 0, 2),
    Sketcher.Constraint("DistanceY", 1, 2, 1, 1, Q("10.3 mm")),
    Sketcher.Constraint("DistanceY", 3, 1, 3, 2, Q("8.4 mm")),
    Sketcher.Constraint("DistanceX", -1, 1, 0, 2, Q("13.1 mm")),
    Sketcher.Constraint("DistanceX", -1, 1, 2, 2, Q("14.9 mm")),
    Sketcher.Constraint("DistanceY", 2, 2, -1, 1, Q("27.2 mm")),
])
pocket7 = doc.addObject("PartDesign::Pocket", "Pocket006")
body3.addObject(pocket7)
pocket7.Profile = sketch17
pocket7.Length = 11.25

# Sketch on XZ plane
sketch18 = doc.addObject("Sketcher::SketchObject", "Sketch017")
body3.addObject(sketch18)
sketch18.AttachmentSupport = (doc.getObject("XZ_Plane002"), [""])
sketch18.MapMode = "FlatFace"
sketch18.AttachmentOffset = App.Placement(Vector(0, 0, -17.05), App.Rotation())
add_polygon(sketch18, [(6.8, -26.1), (6.8, -27.1), (13.8, -27.1), (13.8, -26.1)])  # lines 0-3
add_polygon(sketch18, [(6.8, -18.9), (6.8, -19.9), (13.8, -19.9), (13.8, -18.9)])  # lines 4-7
sketch18.addConstraint([
    Sketcher.Constraint("Vertical", 0),
    Sketcher.Constraint("Horizontal", 1),
    Sketcher.Constraint("Vertical", 2),
    Sketcher.Constraint("Horizontal", 3),
    Sketcher.Constraint("Vertical", 4),
    Sketcher.Constraint("Horizontal", 5),
    Sketcher.Constraint("Vertical", 6),
    Sketcher.Constraint("Horizontal", 7),
    Sketcher.Constraint("Vertical", 3, 2, 4, 2),
    Sketcher.Constraint("Vertical", 2, 2, 5, 2),
    Sketcher.Constraint("Equal", 2, 4),
    Sketcher.Constraint("DistanceX", 1, 1, 1, 2, Q("7 mm")),
    Sketcher.Constraint("DistanceY", 0, 2, 0, 1, Q("1 mm")),
    Sketcher.Constraint("DistanceX", -1, 1, 0, 2, Q("6.75 mm")),
    Sketcher.Constraint("DistanceY", 3, 2, 4, 2, Q("6.25 mm")),
    Sketcher.Constraint("DistanceY", 0, 2, -1, 1, Q("27.125 mm")),
])
pocket8 = doc.addObject("PartDesign::Pocket", "Pocket007")
body3.addObject(pocket8)
pocket8.Profile = sketch18
pocket8.Length = 3.95
pocket8.Reversed = True
doc.recompute()

mirrored2 = doc.addObject("PartDesign::Mirrored", "Mirrored001")
body3.addObject(mirrored2)
mirrored2.Originals = [pocket6, pocket7, pocket8]
mirrored2.MirrorPlane = (doc.getObject("YZ_Plane002"), [""])
body3.Tip = mirrored2

# Sketch on XZ plane
sketch19 = doc.addObject("Sketcher::SketchObject", "Sketch018")
body3.addObject(sketch19)
sketch19.AttachmentSupport = (doc.getObject("XZ_Plane002"), [""])
sketch19.MapMode = "FlatFace"
sketch19.AttachmentOffset = App.Placement(Vector(0, 0, -13.1), App.Rotation())
add_polygon(sketch19, [(-19, -16), (-19, -30), (19, -30), (19, -16)])  # lines 0-3
sketch19.addConstraint([
    Sketcher.Constraint("Vertical", 0),
    Sketcher.Constraint("Horizontal", 1),
    Sketcher.Constraint("Vertical", 2),
    Sketcher.Constraint("Horizontal", 3),
    Sketcher.Constraint("DistanceX", 1, 1, 1, 2, Q("38.8 mm")),
    Sketcher.Constraint("DistanceY", 0, 2, 0, 1, Q("14.5 mm")),
    Sketcher.Constraint("DistanceX", 0, 2, -1, 1, Q("19.4 mm")),
    Sketcher.Constraint("DistanceY", 0, 2, -1, 1, Q("30.25 mm")),
])
pocket9 = doc.addObject("PartDesign::Pocket", "Pocket008")
body3.addObject(pocket9)
pocket9.Profile = sketch19
pocket9.Length = 3.9
body4 = doc.addObject("PartDesign::Body", "Body003")
doc.recompute()

mirroring2 = doc.addObject("Part::Mirroring", "Mirroring001")
mirroring2.Source = body3
mirroring2.Base = Vector(0, 0, 0)
mirroring2.Normal = Vector(0, 1, 0)
body4.BaseFeature = mirroring2
doc.recompute()
mirroring.Visibility = False
mirroring2.Visibility = False

doc.recompute()
